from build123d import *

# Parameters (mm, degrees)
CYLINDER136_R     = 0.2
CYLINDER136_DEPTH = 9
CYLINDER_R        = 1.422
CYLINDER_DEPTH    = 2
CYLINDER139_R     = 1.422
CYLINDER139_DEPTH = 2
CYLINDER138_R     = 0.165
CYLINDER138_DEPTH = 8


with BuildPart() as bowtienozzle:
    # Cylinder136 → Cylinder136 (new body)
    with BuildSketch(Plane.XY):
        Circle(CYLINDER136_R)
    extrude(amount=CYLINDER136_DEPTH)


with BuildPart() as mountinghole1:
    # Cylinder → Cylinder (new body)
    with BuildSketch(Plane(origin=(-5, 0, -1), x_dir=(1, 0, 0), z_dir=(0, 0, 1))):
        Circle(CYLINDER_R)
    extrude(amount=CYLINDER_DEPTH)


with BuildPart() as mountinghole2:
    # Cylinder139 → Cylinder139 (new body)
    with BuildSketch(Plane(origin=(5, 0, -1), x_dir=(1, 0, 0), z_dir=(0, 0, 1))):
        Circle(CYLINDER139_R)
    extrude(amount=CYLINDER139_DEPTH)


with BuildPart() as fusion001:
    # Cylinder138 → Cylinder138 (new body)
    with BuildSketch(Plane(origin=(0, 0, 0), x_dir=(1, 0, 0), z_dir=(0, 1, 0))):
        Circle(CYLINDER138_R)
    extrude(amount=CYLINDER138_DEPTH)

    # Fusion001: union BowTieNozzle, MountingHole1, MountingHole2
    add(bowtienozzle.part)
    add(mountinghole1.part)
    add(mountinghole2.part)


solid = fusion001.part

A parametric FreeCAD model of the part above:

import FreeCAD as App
import Part
import Sketcher

doc = App.newDocument("Part")
body = doc.addObject("PartDesign::Body", "Body")

# Sketch on XY plane
sketch1 = body.newObject("Sketcher::SketchObject", "Sketch")
sketch1.AttachmentSupport = (doc.getObject("XY_Plane"), [""])
sketch1.MapMode = "FlatFace"
sketch1.addGeometry(Part.Circle(App.Vector(0, 0, 0), App.Vector(0, 0, 1), 0.2), False)
sketch1.addConstraint(Sketcher.Constraint("Coincident", 0, 3, -1, 1))
sketch1.addConstraint(Sketcher.Constraint("Diameter", 0, 0.4))
pad1 = body.newObject("PartDesign::Pad", "Pad")
pad1.Profile = sketch1
pad1.Length = 9
body2 = doc.addObject("PartDesign::Body", "Body001")

# Sketch on XY plane
sketch2 = body2.newObject("Sketcher::SketchObject", "Sketch001")
sketch2.AttachmentSupport = (doc.getObject("XY_Plane001"), [""])
sketch2.MapMode = "FlatFace"
sketch2.AttachmentOffset = App.Placement(App.Vector(0, 0, -1), App.Rotation())
sketch2.addGeometry(Part.Circle(App.Vector(-5, 0, 0), App.Vector(0, 0, 1), 1.4), False)
sketch2.addConstraint(Sketcher.Constraint("PointOnObject", 0, 3, -1))
sketch2.addConstraint(Sketcher.Constraint("Diameter", 0, 2.844))
sketch2.addConstraint(Sketcher.Constraint("DistanceX", 0, 3, -1, 1, 5.0))
pad2 = body2.newObject("PartDesign::Pad", "Pad001")
pad2.Profile = sketch2
pad2.Length = 2
body3 = doc.addObject("PartDesign::Body", "Body002")

# Sketch on XY plane
sketch3 = body3.newObject("Sketcher::SketchObject", "Sketch002")
sketch3.AttachmentSupport = (doc.getObject("XY_Plane002"), [""])
sketch3.MapMode = "FlatFace"
sketch3.AttachmentOffset = App.Placement(App.Vector(0, 0, -1), App.Rotation())
sketch3.addGeometry(Part.Circle(App.Vector(5, 0, 0), App.Vector(0, 0, 1), 1.4), False)
sketch3.addConstraint(Sketcher.Constraint("PointOnObject", 0, 3, -1))
sketch3.addConstraint(Sketcher.Constraint("Diameter", 0, 2.844))
sketch3.addConstraint(Sketcher.Constraint("DistanceX", -1, 1, 0, 3, 5.0))
pad3 = body3.newObject("PartDesign::Pad", "Pad002")
pad3.Profile = sketch3
pad3.Length = 2
body4 = doc.addObject("PartDesign::Body", "Body003")
body4.AllowCompound = True

# Sketch on XZ plane
sketch4 = body4.newObject("Sketcher::SketchObject", "Sketch003")
sketch4.AttachmentSupport = (doc.getObject("XZ_Plane003"), [""])
sketch4.MapMode = "FlatFace"
sketch4.addGeometry(Part.Circle(App.Vector(0, 0, 0), App.Vector(0, 0, 1), 0.17), False)
sketch4.addConstraint(Sketcher.Constraint("Coincident", 0, 3, -1, 1))
sketch4.addConstraint(Sketcher.Constraint("Diameter", 0, 0.33))
pad4 = body4.newObject("PartDesign::Pad", "Pad003")
pad4.Profile = sketch4
pad4.Length = 8
pad4.Reversed = True
doc.recompute()

boolean = body4.newObject("PartDesign::Boolean", "Boolean")
boolean.Type = "Fuse"
boolean.addObjects([body])
doc.recompute()

boolean2 = body4.newObject("PartDesign::Boolean", "Boolean001")
boolean2.Type = "Fuse"
boolean2.addObjects([body2])
doc.recompute()

boolean3 = body4.newObject("PartDesign::Boolean", "Boolean002")
boolean3.Type = "Fuse"
boolean3.addObjects([body3])

doc.recompute()
